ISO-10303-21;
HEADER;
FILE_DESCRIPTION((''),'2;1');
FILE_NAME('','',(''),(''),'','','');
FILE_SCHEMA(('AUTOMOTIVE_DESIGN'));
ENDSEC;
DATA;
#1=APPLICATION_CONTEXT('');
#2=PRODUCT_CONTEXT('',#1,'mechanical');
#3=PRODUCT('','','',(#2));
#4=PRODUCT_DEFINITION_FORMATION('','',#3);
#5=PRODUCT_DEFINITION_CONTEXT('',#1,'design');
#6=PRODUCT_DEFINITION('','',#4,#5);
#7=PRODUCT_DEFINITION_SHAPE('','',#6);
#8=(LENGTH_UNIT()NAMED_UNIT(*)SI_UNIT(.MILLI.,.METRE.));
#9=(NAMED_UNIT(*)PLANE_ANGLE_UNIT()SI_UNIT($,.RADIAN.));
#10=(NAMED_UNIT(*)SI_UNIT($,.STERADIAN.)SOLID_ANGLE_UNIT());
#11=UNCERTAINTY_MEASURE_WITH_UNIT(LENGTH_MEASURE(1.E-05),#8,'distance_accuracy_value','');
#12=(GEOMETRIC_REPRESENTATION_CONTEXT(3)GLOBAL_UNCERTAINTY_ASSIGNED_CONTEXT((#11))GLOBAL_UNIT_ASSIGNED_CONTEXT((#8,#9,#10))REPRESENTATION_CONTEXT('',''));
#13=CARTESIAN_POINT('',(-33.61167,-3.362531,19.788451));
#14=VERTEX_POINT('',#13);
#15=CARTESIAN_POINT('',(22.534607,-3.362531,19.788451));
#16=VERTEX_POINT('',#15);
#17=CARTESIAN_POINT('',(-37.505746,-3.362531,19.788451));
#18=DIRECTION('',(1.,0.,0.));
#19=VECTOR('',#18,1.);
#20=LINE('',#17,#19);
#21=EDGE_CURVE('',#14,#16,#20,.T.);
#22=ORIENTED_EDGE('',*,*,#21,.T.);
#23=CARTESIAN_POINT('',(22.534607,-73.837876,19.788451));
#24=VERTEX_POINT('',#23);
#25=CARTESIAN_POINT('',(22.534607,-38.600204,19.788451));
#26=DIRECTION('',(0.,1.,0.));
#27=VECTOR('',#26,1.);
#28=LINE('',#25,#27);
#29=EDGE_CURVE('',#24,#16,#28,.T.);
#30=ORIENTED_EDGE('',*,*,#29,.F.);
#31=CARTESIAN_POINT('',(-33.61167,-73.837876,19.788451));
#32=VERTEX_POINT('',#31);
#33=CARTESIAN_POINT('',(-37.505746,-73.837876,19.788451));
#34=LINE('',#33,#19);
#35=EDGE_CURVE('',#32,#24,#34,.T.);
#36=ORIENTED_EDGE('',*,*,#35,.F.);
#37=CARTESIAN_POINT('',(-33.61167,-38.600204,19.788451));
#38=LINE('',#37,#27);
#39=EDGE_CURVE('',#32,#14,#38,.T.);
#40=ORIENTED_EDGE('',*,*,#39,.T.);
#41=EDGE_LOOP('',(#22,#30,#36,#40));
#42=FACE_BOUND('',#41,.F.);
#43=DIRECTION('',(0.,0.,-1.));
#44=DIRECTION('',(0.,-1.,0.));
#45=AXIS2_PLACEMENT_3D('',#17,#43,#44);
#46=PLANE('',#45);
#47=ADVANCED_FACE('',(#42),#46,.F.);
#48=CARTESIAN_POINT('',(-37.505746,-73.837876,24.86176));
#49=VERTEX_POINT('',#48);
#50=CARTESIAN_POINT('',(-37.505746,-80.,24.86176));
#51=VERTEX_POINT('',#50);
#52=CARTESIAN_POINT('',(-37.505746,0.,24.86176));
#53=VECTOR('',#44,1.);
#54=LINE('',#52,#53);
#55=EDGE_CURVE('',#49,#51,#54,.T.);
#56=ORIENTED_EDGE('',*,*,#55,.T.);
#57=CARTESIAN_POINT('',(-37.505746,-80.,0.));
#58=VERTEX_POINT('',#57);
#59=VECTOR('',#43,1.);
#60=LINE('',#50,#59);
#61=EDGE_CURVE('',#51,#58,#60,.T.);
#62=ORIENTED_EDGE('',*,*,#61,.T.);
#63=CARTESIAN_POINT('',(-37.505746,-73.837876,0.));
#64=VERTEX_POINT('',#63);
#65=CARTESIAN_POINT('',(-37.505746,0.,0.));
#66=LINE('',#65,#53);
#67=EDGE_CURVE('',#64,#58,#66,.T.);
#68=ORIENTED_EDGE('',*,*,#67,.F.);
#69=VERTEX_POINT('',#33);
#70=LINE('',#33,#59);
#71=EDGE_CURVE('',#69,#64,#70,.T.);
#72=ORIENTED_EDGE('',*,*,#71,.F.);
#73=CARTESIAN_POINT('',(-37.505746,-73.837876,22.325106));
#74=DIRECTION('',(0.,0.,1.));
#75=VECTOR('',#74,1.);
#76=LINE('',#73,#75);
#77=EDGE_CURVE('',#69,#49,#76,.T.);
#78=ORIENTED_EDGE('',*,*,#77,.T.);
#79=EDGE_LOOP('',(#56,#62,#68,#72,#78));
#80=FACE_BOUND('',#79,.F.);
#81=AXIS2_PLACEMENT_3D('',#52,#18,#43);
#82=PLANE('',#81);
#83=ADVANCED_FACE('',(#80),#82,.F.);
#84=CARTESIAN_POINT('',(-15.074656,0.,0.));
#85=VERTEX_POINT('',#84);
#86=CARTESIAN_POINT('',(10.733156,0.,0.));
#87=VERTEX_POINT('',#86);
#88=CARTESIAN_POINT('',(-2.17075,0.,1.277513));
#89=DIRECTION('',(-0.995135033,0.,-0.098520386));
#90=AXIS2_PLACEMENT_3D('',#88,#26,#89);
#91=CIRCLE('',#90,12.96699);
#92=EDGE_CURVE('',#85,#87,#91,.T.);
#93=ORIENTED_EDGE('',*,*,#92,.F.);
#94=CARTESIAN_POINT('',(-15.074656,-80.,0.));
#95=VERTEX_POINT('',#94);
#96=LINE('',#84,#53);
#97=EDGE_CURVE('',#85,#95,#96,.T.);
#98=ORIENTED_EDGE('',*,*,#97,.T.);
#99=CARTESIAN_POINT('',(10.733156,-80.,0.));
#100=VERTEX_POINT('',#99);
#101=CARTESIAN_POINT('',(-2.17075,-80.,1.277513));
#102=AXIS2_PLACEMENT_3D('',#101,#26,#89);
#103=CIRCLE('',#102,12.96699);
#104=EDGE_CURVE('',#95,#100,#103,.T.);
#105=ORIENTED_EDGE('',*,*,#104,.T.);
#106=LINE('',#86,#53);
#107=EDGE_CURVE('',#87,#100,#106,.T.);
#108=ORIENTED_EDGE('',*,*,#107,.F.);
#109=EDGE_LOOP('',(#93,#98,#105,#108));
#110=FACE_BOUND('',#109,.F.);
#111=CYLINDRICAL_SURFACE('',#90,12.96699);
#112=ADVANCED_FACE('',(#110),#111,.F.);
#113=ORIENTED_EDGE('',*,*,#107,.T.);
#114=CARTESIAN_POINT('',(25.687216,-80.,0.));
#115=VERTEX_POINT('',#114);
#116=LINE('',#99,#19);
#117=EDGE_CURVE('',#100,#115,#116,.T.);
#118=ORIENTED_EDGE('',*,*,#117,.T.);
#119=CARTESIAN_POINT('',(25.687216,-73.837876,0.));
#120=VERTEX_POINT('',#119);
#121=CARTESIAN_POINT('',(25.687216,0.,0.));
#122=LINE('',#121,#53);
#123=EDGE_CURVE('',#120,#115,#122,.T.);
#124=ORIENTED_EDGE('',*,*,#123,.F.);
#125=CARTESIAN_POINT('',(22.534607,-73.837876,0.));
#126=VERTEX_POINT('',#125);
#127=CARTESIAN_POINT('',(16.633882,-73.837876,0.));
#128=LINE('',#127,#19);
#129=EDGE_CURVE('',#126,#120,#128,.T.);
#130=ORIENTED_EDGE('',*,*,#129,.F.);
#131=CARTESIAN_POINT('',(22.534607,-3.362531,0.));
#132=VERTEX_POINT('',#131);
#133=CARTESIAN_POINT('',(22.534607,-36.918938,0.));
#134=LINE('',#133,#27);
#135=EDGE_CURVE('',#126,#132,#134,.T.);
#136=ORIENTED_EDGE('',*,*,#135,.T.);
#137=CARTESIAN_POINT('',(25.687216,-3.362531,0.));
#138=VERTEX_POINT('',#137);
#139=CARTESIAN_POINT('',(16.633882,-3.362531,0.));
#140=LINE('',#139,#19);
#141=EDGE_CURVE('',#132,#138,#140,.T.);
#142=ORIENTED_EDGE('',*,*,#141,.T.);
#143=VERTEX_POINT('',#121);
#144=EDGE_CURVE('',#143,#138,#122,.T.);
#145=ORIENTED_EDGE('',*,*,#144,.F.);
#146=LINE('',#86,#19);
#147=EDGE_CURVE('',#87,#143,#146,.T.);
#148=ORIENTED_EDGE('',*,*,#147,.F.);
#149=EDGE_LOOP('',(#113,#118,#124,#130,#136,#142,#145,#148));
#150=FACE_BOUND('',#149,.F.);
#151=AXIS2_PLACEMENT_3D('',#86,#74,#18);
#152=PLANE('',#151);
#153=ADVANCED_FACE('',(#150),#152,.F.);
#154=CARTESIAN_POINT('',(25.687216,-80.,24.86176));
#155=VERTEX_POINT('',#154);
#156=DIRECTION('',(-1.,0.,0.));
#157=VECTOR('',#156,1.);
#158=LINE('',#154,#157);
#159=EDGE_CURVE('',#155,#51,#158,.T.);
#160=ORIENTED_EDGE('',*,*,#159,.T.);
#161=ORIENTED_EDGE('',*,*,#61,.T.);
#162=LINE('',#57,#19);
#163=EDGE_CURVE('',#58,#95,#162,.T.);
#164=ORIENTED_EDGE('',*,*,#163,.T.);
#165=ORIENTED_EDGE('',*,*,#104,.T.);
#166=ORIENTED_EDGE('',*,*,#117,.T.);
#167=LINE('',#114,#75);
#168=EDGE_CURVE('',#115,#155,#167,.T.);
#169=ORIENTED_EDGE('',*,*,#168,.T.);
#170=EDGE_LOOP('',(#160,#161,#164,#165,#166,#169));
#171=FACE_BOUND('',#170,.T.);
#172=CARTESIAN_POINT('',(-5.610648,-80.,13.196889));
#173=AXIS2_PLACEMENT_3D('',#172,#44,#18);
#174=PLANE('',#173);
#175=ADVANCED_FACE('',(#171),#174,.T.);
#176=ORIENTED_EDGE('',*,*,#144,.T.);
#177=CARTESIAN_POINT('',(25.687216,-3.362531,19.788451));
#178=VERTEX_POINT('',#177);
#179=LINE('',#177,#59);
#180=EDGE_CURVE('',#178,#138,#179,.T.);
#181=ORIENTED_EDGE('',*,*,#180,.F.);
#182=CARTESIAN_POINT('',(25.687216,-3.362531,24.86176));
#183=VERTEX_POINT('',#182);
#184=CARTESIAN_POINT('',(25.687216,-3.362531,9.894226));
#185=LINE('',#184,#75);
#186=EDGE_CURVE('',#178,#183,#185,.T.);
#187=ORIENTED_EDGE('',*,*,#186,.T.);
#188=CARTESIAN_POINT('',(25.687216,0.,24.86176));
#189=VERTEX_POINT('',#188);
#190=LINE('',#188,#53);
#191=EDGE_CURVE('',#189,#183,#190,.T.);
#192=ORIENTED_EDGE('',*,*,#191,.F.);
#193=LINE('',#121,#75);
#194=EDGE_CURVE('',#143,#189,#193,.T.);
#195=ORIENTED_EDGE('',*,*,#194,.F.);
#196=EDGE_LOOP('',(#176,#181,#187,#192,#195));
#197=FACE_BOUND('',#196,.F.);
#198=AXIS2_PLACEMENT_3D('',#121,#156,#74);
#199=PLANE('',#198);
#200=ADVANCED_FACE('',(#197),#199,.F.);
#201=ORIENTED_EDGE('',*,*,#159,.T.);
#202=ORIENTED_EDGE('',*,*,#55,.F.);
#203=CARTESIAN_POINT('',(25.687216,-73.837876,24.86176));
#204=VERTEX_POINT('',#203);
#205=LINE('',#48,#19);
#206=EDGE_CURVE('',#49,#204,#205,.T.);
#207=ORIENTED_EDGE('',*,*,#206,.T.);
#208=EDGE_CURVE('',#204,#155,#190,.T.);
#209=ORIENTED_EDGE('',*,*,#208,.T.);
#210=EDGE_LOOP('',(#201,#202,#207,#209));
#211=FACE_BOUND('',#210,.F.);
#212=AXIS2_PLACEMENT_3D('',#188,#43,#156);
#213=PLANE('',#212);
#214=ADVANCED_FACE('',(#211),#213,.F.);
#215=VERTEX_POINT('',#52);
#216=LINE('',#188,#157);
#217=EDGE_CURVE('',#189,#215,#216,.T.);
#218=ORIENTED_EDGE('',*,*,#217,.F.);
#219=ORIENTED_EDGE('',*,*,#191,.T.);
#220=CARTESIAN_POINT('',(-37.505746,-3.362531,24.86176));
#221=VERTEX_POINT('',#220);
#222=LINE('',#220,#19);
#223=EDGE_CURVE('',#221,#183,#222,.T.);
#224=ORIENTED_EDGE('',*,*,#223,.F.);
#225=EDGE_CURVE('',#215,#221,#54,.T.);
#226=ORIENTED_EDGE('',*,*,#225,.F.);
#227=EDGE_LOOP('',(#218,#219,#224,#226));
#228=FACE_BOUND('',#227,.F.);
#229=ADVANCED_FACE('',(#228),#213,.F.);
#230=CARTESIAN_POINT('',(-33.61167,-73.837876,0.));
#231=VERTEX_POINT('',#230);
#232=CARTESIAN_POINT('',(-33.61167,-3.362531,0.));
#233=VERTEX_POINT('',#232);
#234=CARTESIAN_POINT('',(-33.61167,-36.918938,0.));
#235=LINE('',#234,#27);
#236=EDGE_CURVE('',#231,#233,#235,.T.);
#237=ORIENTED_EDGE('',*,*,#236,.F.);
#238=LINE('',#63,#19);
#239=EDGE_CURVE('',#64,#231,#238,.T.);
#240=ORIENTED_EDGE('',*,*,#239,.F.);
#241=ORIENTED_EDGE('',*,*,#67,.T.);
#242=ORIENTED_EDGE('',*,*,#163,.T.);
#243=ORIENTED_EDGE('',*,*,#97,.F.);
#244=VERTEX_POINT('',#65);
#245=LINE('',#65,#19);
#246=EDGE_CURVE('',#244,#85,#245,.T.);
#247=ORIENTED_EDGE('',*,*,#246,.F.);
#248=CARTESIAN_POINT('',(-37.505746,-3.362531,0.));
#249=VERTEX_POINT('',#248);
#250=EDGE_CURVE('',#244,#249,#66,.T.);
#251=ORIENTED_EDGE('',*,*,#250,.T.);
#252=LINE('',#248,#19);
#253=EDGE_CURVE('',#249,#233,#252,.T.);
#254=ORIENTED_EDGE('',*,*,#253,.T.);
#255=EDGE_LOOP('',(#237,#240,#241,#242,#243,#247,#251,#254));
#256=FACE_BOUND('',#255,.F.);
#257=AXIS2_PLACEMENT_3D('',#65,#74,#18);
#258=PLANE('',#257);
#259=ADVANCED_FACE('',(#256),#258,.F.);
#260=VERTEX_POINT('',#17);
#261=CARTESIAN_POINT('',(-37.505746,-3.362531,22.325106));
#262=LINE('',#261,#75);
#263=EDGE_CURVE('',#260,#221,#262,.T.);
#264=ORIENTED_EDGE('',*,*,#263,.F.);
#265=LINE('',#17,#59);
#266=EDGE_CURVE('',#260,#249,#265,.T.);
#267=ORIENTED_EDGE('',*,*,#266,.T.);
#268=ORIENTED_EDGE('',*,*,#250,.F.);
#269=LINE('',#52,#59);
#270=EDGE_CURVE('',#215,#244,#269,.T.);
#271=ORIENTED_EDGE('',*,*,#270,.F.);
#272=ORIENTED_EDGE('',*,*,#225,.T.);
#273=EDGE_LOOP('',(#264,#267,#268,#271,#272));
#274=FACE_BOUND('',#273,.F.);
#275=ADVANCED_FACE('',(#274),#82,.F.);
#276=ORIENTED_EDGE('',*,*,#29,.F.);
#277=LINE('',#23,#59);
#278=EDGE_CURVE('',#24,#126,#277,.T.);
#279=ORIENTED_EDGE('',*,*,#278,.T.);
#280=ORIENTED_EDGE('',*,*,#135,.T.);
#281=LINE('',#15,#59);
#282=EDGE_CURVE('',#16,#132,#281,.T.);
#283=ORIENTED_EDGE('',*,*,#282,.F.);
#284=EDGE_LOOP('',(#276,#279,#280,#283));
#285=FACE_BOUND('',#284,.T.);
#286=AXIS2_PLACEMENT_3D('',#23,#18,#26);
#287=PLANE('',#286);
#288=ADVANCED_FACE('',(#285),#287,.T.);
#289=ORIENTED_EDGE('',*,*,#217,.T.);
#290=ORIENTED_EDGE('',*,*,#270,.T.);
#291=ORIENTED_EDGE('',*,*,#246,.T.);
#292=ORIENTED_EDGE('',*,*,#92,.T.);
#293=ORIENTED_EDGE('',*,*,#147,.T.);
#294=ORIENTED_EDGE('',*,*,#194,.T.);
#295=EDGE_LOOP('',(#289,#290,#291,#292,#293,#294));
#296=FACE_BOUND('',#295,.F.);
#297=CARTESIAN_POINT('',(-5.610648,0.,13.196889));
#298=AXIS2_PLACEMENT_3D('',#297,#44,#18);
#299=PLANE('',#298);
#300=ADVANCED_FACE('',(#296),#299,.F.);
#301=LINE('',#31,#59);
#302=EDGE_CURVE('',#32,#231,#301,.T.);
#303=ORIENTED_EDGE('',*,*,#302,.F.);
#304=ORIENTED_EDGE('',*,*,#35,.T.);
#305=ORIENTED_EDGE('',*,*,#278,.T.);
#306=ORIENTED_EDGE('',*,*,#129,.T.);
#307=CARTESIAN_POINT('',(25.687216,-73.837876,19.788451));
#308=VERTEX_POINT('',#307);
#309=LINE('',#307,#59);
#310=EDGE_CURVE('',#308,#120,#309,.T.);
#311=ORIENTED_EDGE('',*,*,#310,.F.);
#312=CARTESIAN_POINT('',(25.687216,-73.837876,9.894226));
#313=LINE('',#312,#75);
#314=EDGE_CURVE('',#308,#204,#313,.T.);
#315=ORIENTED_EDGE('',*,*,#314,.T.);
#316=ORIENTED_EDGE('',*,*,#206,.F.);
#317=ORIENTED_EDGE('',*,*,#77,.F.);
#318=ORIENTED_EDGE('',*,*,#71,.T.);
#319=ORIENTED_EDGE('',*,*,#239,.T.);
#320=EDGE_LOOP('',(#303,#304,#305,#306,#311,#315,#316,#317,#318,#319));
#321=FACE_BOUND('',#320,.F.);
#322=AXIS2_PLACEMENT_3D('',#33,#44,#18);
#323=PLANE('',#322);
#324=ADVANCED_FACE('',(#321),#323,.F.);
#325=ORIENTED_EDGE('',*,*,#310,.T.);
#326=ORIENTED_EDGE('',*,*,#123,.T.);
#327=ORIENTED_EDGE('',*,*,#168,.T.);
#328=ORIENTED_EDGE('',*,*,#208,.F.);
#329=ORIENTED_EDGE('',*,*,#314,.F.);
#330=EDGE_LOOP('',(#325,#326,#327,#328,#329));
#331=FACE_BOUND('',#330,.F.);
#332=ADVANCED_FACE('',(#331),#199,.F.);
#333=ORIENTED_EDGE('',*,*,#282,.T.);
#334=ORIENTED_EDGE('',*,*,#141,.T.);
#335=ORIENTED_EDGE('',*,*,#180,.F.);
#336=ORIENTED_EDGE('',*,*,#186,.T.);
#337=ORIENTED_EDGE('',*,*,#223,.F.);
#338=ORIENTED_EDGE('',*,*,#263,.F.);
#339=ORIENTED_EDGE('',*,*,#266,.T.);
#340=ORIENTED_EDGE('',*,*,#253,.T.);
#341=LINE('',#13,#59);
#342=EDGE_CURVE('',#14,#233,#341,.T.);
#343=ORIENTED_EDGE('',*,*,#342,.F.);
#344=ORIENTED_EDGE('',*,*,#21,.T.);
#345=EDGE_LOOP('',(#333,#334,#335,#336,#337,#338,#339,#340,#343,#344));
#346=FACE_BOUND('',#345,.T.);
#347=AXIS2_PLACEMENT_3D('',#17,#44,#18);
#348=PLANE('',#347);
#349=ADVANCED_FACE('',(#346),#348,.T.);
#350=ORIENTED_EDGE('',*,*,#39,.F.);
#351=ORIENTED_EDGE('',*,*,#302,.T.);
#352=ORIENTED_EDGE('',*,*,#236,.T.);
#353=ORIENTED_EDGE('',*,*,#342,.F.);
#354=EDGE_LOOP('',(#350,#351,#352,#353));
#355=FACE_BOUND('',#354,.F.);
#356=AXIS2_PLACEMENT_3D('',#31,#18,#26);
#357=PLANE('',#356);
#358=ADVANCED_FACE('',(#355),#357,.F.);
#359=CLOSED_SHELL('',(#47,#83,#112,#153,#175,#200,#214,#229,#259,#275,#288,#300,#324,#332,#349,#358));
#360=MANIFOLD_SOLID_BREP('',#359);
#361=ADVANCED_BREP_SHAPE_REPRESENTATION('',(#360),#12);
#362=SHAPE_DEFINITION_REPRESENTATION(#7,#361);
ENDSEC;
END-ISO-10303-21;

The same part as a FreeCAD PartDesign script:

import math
import FreeCAD as App
import Part
import Sketcher
Q = App.Units.Quantity

doc = App.newDocument("Part")
body = doc.addObject("PartDesign::Body", "Body")

sketch1 = doc.addObject("Sketcher::SketchObject", "Sketch")
body.addObject(sketch1)
sketch1.AttachmentSupport = (doc.XZ_Plane, [""])
sketch1.MapMode = "FlatFace"
sketch1.addGeometry([
    Part.LineSegment(App.Vector(-38, 25, 0), App.Vector(-38, 0, 0)),
    Part.LineSegment(App.Vector(-38, 0, 0), App.Vector(-15, 0, 0)),
    Part.ArcOfCircle(Part.Circle(App.Vector(-2, 1, 0), App.Vector(0, 0, 1), 13), math.radians(-6), math.radians(186)),
    Part.LineSegment(App.Vector(11, 0, 0), App.Vector(26, 0, 0)),
    Part.LineSegment(App.Vector(26, 0, 0), App.Vector(26, 25, 0)),
    Part.LineSegment(App.Vector(26, 25, 0), App.Vector(-38, 25, 0)),
], False)
sketch1.addConstraint([
    Sketcher.Constraint("Coincident", 0, 2, 1, 1),
    Sketcher.Constraint("Coincident", 1, 2, 2, 2),
    Sketcher.Constraint("Coincident", 2, 1, 3, 1),
    Sketcher.Constraint("Coincident", 3, 2, 4, 1),
    Sketcher.Constraint("Coincident", 4, 2, 5, 1),
    Sketcher.Constraint("Coincident", 5, 2, 0, 1),
    Sketcher.Constraint("Vertical", 0),
    Sketcher.Constraint("Horizontal", 1),
    Sketcher.Constraint("Horizontal", 3),
    Sketcher.Constraint("Vertical", 4),
    Sketcher.Constraint("Horizontal", 5),
    Sketcher.Constraint("PointOnObject", 0, 2, -1),
    Sketcher.Constraint("PointOnObject", 2, 1, -1),
    Sketcher.Constraint("Radius", 2, Q("12.96699 mm")),
    Sketcher.Constraint("DistanceX", 1, 1, 1, 2, Q("22.43109 mm")),
    Sketcher.Constraint("DistanceX", 3, 1, 3, 2, Q("14.954059 mm")),
    Sketcher.Constraint("DistanceX", 5, 2, 5, 1, Q("63.192962 mm")),
    Sketcher.Constraint("DistanceY", 0, 2, 0, 1, Q("24.86176 mm")),
    Sketcher.Constraint("DistanceX", 2, 3, -1, 1, Q("2.17075 mm")),
])
pad1 = doc.addObject("PartDesign::Pad", "Pad")
body.addObject(pad1)
pad1.Profile = sketch1
pad1.Length = 80

sketch2 = doc.addObject("Sketcher::SketchObject", "Sketch001")
body.addObject(sketch2)
sketch2.AttachmentSupport = (doc.YZ_Plane, [""])
sketch2.MapMode = "FlatFace"
sketch2.AttachmentOffset = App.Placement(App.Vector(0, 0, -37.505746), App.Rotation())
sketch2.addGeometry([
    Part.LineSegment(App.Vector(-3, 25, 0), App.Vector(-3, 20, 0)),
    Part.LineSegment(App.Vector(-3, 20, 0), App.Vector(-74, 20, 0)),
    Part.LineSegment(App.Vector(-74, 20, 0), App.Vector(-74, 25, 0)),
    Part.LineSegment(App.Vector(-74, 25, 0), App.Vector(-3, 25, 0)),
], False)
sketch2.addConstraint([
    Sketcher.Constraint("Coincident", 0, 2, 1, 1),
    Sketcher.Constraint("Coincident", 1, 2, 2, 1),
    Sketcher.Constraint("Coincident", 2, 2, 3, 1),
    Sketcher.Constraint("Coincident", 3, 2, 0, 1),
    Sketcher.Constraint("Vertical", 0),
    Sketcher.Constraint("Horizontal", 1),
    Sketcher.Constraint("Vertical", 2),
    Sketcher.Constraint("Horizontal", 3),
    Sketcher.Constraint("DistanceY", 0, 2, 0, 1, Q("5.073308 mm")),
    Sketcher.Constraint("DistanceX", 1, 2, 1, 1, Q("70.475345 mm")),
    Sketcher.Constraint("DistanceX", 0, 2, -1, 1, Q("3.362531 mm")),
    Sketcher.Constraint("DistanceY", -1, 1, 0, 2, Q("19.788451 mm")),
])
pocket1 = doc.addObject("PartDesign::Pocket", "Pocket")
body.addObject(pocket1)
pocket1.Profile = sketch2
pocket1.Length = 64
pocket1.Reversed = True

sketch3 = doc.addObject("Sketcher::SketchObject", "Sketch002")
body.addObject(sketch3)
sketch3.AttachmentSupport = (doc.XY_Plane, [""])
sketch3.MapMode = "FlatFace"
sketch3.AttachmentOffset = App.Placement(App.Vector(0, 0, 19.788451), App.Rotation())
sketch3.addGeometry([
    Part.LineSegment(App.Vector(-37.5, -3.4, 0), App.Vector(-37.5, -73.8, 0)),
    Part.LineSegment(App.Vector(-37.5, -73.8, 0), App.Vector(-33.6, -73.8, 0)),
    Part.LineSegment(App.Vector(-33.6, -73.8, 0), App.Vector(-33.6, -3.4, 0)),
    Part.LineSegment(App.Vector(-33.6, -3.4, 0), App.Vector(-37.5, -3.4, 0)),
], False)
sketch3.addConstraint([
    Sketcher.Constraint("Coincident", 0, 2, 1, 1),
    Sketcher.Constraint("Coincident", 1, 2, 2, 1),
    Sketcher.Constraint("Coincident", 2, 2, 3, 1),
    Sketcher.Constraint("Coincident", 3, 2, 0, 1),
    Sketcher.Constraint("Vertical", 0),
    Sketcher.Constraint("Horizontal", 1),
    Sketcher.Constraint("Vertical", 2),
    Sketcher.Constraint("Horizontal", 3),
    Sketcher.Constraint("DistanceX", 1, 1, 1, 2, Q("3.894076 mm")),
    Sketcher.Constraint("DistanceY", 0, 2, 0, 1, Q("70.475345 mm")),
    Sketcher.Constraint("DistanceX", 1, 2, -1, 1, Q("33.61167 mm")),
    Sketcher.Constraint("DistanceY", 2, 2, -1, 1, Q("3.362531 mm")),
])
pocket2 = doc.addObject("PartDesign::Pocket", "Pocket001")
body.addObject(pocket2)
pocket2.Profile = sketch3
pocket2.Length = 25

sketch4 = doc.addObject("Sketcher::SketchObject", "Sketch003")
body.addObject(sketch4)
sketch4.AttachmentSupport = (doc.XY_Plane, [""])
sketch4.MapMode = "FlatFace"
sketch4.AttachmentOffset = App.Placement(App.Vector(0, 0, 19.788451), App.Rotation())
sketch4.addGeometry([
    Part.LineSegment(App.Vector(22.5, -3.4, 0), App.Vector(22.5, -73.8, 0)),
    Part.LineSegment(App.Vector(22.5, -73.8, 0), App.Vector(25.7, -73.8, 0)),
    Part.LineSegment(App.Vector(25.7, -73.8, 0), App.Vector(25.7, -3.4, 0)),
    Part.LineSegment(App.Vector(25.7, -3.4, 0), App.Vector(22.5, -3.4, 0)),
    Part.LineSegment(App.Vector(-37.5, -3.4, 0), App.Vector(-37.5, -73.8, 0)),
    Part.LineSegment(App.Vector(-37.5, -73.8, 0), App.Vector(-33.6, -73.8, 0)),
    Part.LineSegment(App.Vector(-33.6, -73.8, 0), App.Vector(-33.6, -3.4, 0)),
    Part.LineSegment(App.Vector(-33.6, -3.4, 0), App.Vector(-37.5, -3.4, 0)),
], False)
sketch4.addConstraint([
    Sketcher.Constraint("Coincident", 0, 2, 1, 1),
    Sketcher.Constraint("Coincident", 1, 2, 2, 1),
    Sketcher.Constraint("Coincident", 2, 2, 3, 1),
    Sketcher.Constraint("Coincident", 3, 2, 0, 1),
    Sketcher.Constraint("Coincident", 4, 2, 5, 1),
    Sketcher.Constraint("Coincident", 5, 2, 6, 1),
    Sketcher.Constraint("Coincident", 6, 2, 7, 1),
    Sketcher.Constraint("Coincident", 7, 2, 4, 1),
    Sketcher.Constraint("Vertical", 0),
    Sketcher.Constraint("Horizontal", 1),
    Sketcher.Constraint("Vertical", 2),
    Sketcher.Constraint("Horizontal", 3),
    Sketcher.Constraint("Vertical", 4),
    Sketcher.Constraint("Horizontal", 5),
    Sketcher.Constraint("Vertical", 6),
    Sketcher.Constraint("Horizontal", 7),
    Sketcher.Constraint("Horizontal", 1, 2, 4, 2),
    Sketcher.Constraint("Horizontal", 3, 2, 6, 2),
    Sketcher.Constraint("DistanceX", 1, 1, 1, 2, Q("3.152609 mm")),
    Sketcher.Constraint("DistanceX", 5, 1, 5, 2, Q("3.894076 mm")),
    Sketcher.Constraint("DistanceY", 0, 2, 0, 1, Q("70.475345 mm")),
    Sketcher.Constraint("DistanceY", 2, 2, -1, 1, Q("3.362531 mm")),
    Sketcher.Constraint("DistanceX", 5, 2, -1, 1, Q("33.61167 mm")),
    Sketcher.Constraint("DistanceX", 4, 2, 1, 2, Q("63.192962 mm")),
])
pocket3 = doc.addObject("PartDesign::Pocket", "Pocket002")
body.addObject(pocket3)
pocket3.Profile = sketch4
pocket3.Length = 25

doc.recompute()
